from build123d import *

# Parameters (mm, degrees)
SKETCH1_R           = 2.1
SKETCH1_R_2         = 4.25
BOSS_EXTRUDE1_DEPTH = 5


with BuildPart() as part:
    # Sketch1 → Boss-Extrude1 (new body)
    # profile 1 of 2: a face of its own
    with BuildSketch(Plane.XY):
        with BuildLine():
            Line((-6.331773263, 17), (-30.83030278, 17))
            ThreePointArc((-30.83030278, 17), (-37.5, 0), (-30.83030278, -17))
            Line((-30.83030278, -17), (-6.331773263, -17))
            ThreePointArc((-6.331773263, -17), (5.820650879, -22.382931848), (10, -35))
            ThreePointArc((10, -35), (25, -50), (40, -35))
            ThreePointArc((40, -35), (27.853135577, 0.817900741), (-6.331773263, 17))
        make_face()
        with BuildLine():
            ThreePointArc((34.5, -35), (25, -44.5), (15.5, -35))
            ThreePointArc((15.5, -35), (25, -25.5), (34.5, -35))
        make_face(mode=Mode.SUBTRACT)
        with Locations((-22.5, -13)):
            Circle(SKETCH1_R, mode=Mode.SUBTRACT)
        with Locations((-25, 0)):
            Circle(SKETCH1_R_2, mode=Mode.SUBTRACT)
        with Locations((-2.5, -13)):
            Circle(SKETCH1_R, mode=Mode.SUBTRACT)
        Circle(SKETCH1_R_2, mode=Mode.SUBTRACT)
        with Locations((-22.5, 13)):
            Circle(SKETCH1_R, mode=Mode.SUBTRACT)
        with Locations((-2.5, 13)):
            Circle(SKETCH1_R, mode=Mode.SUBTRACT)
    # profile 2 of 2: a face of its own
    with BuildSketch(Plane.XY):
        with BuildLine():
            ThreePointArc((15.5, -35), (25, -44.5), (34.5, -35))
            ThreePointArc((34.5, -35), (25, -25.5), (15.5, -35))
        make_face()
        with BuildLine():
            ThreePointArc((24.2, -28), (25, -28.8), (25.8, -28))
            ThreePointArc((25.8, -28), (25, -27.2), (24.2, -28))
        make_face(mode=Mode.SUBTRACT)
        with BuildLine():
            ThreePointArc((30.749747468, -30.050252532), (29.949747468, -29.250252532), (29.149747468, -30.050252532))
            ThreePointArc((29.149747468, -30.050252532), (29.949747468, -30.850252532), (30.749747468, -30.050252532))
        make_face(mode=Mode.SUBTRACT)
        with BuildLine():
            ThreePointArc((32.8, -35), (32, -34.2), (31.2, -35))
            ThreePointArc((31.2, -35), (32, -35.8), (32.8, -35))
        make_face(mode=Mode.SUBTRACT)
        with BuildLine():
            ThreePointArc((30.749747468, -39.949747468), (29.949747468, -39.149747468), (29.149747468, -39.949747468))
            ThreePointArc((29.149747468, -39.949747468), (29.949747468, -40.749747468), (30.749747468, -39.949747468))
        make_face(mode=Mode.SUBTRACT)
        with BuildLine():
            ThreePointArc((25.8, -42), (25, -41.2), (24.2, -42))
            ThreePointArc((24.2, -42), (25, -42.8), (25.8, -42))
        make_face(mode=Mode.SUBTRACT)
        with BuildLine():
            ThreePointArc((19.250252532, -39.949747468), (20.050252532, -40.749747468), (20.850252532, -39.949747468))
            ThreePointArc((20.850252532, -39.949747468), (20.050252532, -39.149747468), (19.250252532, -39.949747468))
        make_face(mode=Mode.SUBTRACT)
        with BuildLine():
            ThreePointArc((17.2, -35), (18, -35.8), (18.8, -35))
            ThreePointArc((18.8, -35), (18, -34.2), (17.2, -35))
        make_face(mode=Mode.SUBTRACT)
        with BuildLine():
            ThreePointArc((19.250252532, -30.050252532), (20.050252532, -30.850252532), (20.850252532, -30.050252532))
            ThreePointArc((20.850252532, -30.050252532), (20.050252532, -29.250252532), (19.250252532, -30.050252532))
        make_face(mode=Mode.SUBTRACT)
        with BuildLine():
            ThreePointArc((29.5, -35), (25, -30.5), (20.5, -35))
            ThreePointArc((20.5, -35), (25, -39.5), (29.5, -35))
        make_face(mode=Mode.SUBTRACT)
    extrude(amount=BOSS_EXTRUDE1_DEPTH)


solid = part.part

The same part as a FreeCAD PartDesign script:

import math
import FreeCAD as App
import Part
import Sketcher

V = App.Vector
Q = App.Units.Quantity

doc = App.newDocument("Part")
body = doc.addObject("PartDesign::Body", "Body")

sketch1 = doc.addObject("Sketcher::SketchObject", "Sketch")
body.addObject(sketch1)
sketch1.AttachmentSupport = (doc.XY_Plane, [""])
sketch1.MapMode = "FlatFace"
sketch1.addGeometry([
    Part.LineSegment(V(-6.3, 17, 0), V(-30.8, 17, 0)),
    Part.ArcOfCircle(Part.Circle(V(-12.5, 0, 0), V(0, 0, 1), 25), math.radians(137), math.radians(223)),
    Part.LineSegment(V(-30.8, -17, 0), V(-6.3, -17, 0)),
    Part.ArcOfCircle(Part.Circle(V(-6.3, -33.4, 0), V(0, 0, 1), 16.4), math.radians(-6), math.radians(90)),
    Part.ArcOfCircle(Part.Circle(V(25, -35, 0), V(0, 0, 1), 15), math.radians(180), math.radians(360)),
    Part.ArcOfCircle(Part.Circle(V(-8.3, -31.4, 0), V(0, 0, 1), 48.5), math.radians(-4), math.radians(88)),
    Part.Circle(V(-22.5, -13, 0), V(0, 0, 1), 2.1),
    Part.Circle(V(-25, 0, 0), V(0, 0, 1), 4.2),
    Part.Circle(V(-2.5, -13, 0), V(0, 0, 1), 2.1),
    Part.Circle(V(0, 0, 0), V(0, 0, 1), 4.2),
    Part.Circle(V(-22.5, 13, 0), V(0, 0, 1), 2.1),
    Part.Circle(V(-2.5, 13, 0), V(0, 0, 1), 2.1),
    Part.Circle(V(29.9, -30.1, 0), V(0, 0, 1), 0.8),
    Part.Circle(V(25, -28, 0), V(0, 0, 1), 0.8),
    Part.Circle(V(20.1, -39.9, 0), V(0, 0, 1), 0.8),
    Part.Circle(V(25, -42, 0), V(0, 0, 1), 0.8),
    Part.Circle(V(29.9, -39.9, 0), V(0, 0, 1), 0.8),
    Part.Circle(V(18, -35, 0), V(0, 0, 1), 0.8),
    Part.Circle(V(20.1, -30.1, 0), V(0, 0, 1), 0.8),
    Part.Circle(V(25, -35, 0), V(0, 0, 1), 4.5),
    Part.Circle(V(32, -35, 0), V(0, 0, 1), 0.8),
], False)
sketch1.addConstraint([
    Sketcher.Constraint("Coincident", 0, 2, 1, 1),
    Sketcher.Constraint("Coincident", 1, 2, 2, 1),
    Sketcher.Constraint("Coincident", 2, 2, 3, 2),
    Sketcher.Constraint("Coincident", 3, 1, 4, 1),
    Sketcher.Constraint("Coincident", 4, 2, 5, 1),
    Sketcher.Constraint("Coincident", 5, 2, 0, 1),
    Sketcher.Constraint("Horizontal", 0),
    Sketcher.Constraint("Horizontal", 2),
    Sketcher.Constraint("Coincident", 9, 3, -1, 1),
    Sketcher.Constraint("Coincident", 19, 3, 4, 3),
    Sketcher.Constraint("Equal", 6, 8),
    Sketcher.Constraint("Equal", 7, 9),
    Sketcher.Constraint("Equal", 8, 10),
    Sketcher.Constraint("Equal", 10, 11),
    Sketcher.Constraint("Equal", 12, 13),
    Sketcher.Constraint("Equal", 13, 14),
    Sketcher.Constraint("Equal", 14, 15),
    Sketcher.Constraint("Equal", 15, 16),
    Sketcher.Constraint("Equal", 16, 17),
    Sketcher.Constraint("Equal", 17, 18),
    Sketcher.Constraint("Equal", 18, 20),
    Sketcher.Constraint("Symmetric", 6, 3, 10, 3, -1),
    Sketcher.Constraint("Symmetric", 8, 3, 11, 3, -1),
    Sketcher.Constraint("Symmetric", 0, 2, 1, 2, -1),
    Sketcher.Constraint("PointOnObject", 7, 3, -1),
    Sketcher.Constraint("Horizontal", 6, 3, 8, 3),
    Sketcher.Constraint("Horizontal", 14, 3, 16, 3),
    Sketcher.Constraint("Horizontal", 4, 3, 17, 3),
    Sketcher.Constraint("Horizontal", 12, 3, 18, 3),
    Sketcher.Constraint("Horizontal", 19, 3, 20, 3),
    Sketcher.Constraint("Horizontal", 20, 3, 3, 1),
    Sketcher.Constraint("Horizontal", 3, 1, 4, 2),
    Sketcher.Constraint("Vertical", 4, 3, 13, 3),
    Sketcher.Constraint("Vertical", 13, 3, 15, 3),
    Sketcher.Constraint("Vertical", 12, 3, 16, 3),
    Sketcher.Constraint("Vertical", 14, 3, 18, 3),
    Sketcher.Constraint("Vertical", 2, 2, 5, 2),
    Sketcher.Constraint("Diameter", 19, Q("9 mm")),
    Sketcher.Constraint("Radius", 1, Q("25 mm")),
    Sketcher.Constraint("Radius", 4, Q("15 mm")),
    Sketcher.Constraint("Diameter", 6, Q("4.2 mm")),
    Sketcher.Constraint("Diameter", 7, Q("8.5 mm")),
    Sketcher.Constraint("Diameter", 12, Q("1.6 mm")),
    Sketcher.Constraint("DistanceX", -1, 1, 4, 3, Q("25 mm")),
    Sketcher.Constraint("DistanceY", 4, 3, -1, 1, Q("35 mm")),
    Sketcher.Constraint("DistanceY", 6, 3, -1, 1, Q("13 mm")),
    Sketcher.Constraint("DistanceX", 7, 3, -1, 1, Q("25 mm")),
    Sketcher.Constraint("DistanceY", 13, 3, -1, 1, Q("28 mm")),
    Sketcher.Constraint("DistanceY", 15, 3, -1, 1, Q("42 mm")),
    Sketcher.Constraint("DistanceX", -1, 1, 17, 3, Q("18 mm")),
    Sketcher.Constraint("DistanceX", -1, 1, 20, 3, Q("32 mm")),
    Sketcher.Constraint("DistanceY", -1, 1, 0, 2, Q("17 mm")),
    Sketcher.Constraint("DistanceX", 6, 3, 1, 3, Q("10 mm")),
    Sketcher.Constraint("DistanceX", 1, 3, 8, 3, Q("10 mm")),
    Sketcher.Constraint("DistanceX", 1, 3, -1, 1, Q("12.5 mm")),
    Sketcher.Constraint("Radius", 3, Q("16.409111 mm")),
    Sketcher.Constraint("Radius", 5, Q("48.462891 mm")),
    Sketcher.Constraint("DistanceX", 0, 2, 0, 1, Q("24.49853 mm")),
    Sketcher.Constraint("DistanceY", 5, 3, 12, 3, Q("1.371401 mm")),
    Sketcher.Constraint("DistanceX", 5, 3, 12, 3, Q("38.280351 mm")),
    Sketcher.Constraint("DistanceX", -1, 1, 14, 3, Q("20.050253 mm")),
    Sketcher.Constraint("DistanceY", 14, 3, -1, 1, Q("39.949747 mm")),
])
pad1 = doc.addObject("PartDesign::Pad", "Pad")
body.addObject(pad1)
pad1.Profile = sketch1
pad1.Length = 5

doc.recompute()
